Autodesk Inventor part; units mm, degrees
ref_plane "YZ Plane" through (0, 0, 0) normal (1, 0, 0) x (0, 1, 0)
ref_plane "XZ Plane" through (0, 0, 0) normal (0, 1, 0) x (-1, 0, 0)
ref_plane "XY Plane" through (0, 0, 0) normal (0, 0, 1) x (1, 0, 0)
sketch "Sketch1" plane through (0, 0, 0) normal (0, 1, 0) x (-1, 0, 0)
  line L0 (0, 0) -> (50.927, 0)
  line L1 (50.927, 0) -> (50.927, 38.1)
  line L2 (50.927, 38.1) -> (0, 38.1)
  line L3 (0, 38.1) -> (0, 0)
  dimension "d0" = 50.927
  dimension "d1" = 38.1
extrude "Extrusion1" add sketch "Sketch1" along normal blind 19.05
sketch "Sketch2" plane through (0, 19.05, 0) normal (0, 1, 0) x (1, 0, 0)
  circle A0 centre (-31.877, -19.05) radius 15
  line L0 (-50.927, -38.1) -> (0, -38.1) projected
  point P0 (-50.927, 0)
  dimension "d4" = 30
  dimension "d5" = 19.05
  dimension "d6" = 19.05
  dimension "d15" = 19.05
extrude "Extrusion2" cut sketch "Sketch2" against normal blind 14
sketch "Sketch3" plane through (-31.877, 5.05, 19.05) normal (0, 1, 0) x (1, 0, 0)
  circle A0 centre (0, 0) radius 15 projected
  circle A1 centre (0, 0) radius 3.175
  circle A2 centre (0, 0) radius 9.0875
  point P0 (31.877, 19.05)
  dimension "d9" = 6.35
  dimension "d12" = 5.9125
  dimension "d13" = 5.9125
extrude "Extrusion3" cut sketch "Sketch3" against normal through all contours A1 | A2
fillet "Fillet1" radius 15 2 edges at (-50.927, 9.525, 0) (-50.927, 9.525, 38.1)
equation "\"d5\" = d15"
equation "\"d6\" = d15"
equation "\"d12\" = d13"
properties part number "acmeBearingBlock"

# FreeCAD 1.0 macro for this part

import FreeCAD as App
import Part
import Sketcher
from FreeCAD import Vector
Q = App.Units.Quantity


def edges_at(feature, points):
    """Names of the edges that pass closest to the given points."""
    edges = feature.Shape.Edges
    near = lambda p: min(range(len(edges)), key=lambda i: edges[i].distToShape(Part.Vertex(*p))[0])
    return sorted({f"Edge{near(p) + 1}" for p in points})

doc = App.newDocument("Part")
body = doc.addObject("PartDesign::Body", "Body")

sketch1 = doc.addObject("Sketcher::SketchObject", "Sketch")
body.addObject(sketch1)
sketch1.AttachmentSupport = (doc.XZ_Plane, [""])
sketch1.MapMode = "FlatFace"
sketch1.addGeometry(Part.LineSegment(Vector(0, 38.1, 0), Vector(0, 0, 0)), False)
sketch1.addGeometry(Part.LineSegment(Vector(0, 0, 0), Vector(-50.927, 0, 0)), False)
sketch1.addGeometry(Part.LineSegment(Vector(-50.927, 0, 0), Vector(-50.927, 38.1, 0)), False)
sketch1.addGeometry(Part.LineSegment(Vector(-50.927, 38.1, 0), Vector(0, 38.1, 0)), False)
sketch1.addConstraint(Sketcher.Constraint("Coincident", 0, 2, 1, 1))
sketch1.addConstraint(Sketcher.Constraint("Coincident", 1, 2, 2, 1))
sketch1.addConstraint(Sketcher.Constraint("Coincident", 2, 2, 3, 1))
sketch1.addConstraint(Sketcher.Constraint("Coincident", 3, 2, 0, 1))
sketch1.addConstraint(Sketcher.Constraint("Vertical", 0))
sketch1.addConstraint(Sketcher.Constraint("Horizontal", 1))
sketch1.addConstraint(Sketcher.Constraint("Vertical", 2))
sketch1.addConstraint(Sketcher.Constraint("Horizontal", 3))
sketch1.addConstraint(Sketcher.Constraint("Coincident", 0, 2, -1, 1))
sketch1.addConstraint(Sketcher.Constraint("DistanceY", 0, 2, 0, 1, Q("1.5 in")))
sketch1.addConstraint(Sketcher.Constraint("DistanceX", 1, 2, 1, 1, Q("2.005 in")))
pad1 = doc.addObject("PartDesign::Pad", "Pad")
body.addObject(pad1)
pad1.Profile = sketch1
pad1.Length = Q("0.75 in")
pad1.Reversed = True

sketch2 = doc.addObject("Sketcher::SketchObject", "Sketch001")
body.addObject(sketch2)
sketch2.AttachmentSupport = (doc.XZ_Plane, [""])
sketch2.MapMode = "FlatFace"
sketch2.AttachmentOffset = App.Placement(Vector(0, 0, -0.75 * 25.4), App.Rotation())
sketch2.addGeometry(Part.Circle(Vector(-31.877, 19.05, 0), Vector(0, 0, 1), 15), False)
sketch2.addConstraint(Sketcher.Constraint("Diameter", 0, Q("1.1811 in")))
sketch2.addConstraint(Sketcher.Constraint("DistanceY", -1, 1, 0, 3, Q("0.75 in")))
sketch2.addConstraint(Sketcher.Constraint("DistanceX", 0, 3, -1, 1, Q("1.255 in")))
pocket1 = doc.addObject("PartDesign::Pocket", "Pocket")
body.addObject(pocket1)
pocket1.Profile = sketch2
pocket1.Length = 14
pocket1.Reversed = True

sketch3 = doc.addObject("Sketcher::SketchObject", "Sketch002")
body.addObject(sketch3)
sketch3.AttachmentSupport = (doc.XZ_Plane, [""])
sketch3.MapMode = "FlatFace"
sketch3.AttachmentOffset = App.Placement(Vector(0, 0, -5.05), App.Rotation())
sketch3.addGeometry(Part.Circle(Vector(-31.877, 19.05, 0), Vector(0, 0, 1), 9.0875), False)
sketch3.addConstraint(Sketcher.Constraint("Diameter", 0, 18.175))
sketch3.addConstraint(Sketcher.Constraint("DistanceY", -1, 1, 0, 3, Q("0.75 in")))
sketch3.addConstraint(Sketcher.Constraint("DistanceX", 0, 3, -1, 1, Q("1.255 in")))
pocket2 = doc.addObject("PartDesign::Pocket", "Pocket001")
body.addObject(pocket2)
pocket2.Profile = sketch3
pocket2.Type = "ThroughAll"
pocket2.Reversed = True
doc.recompute()

fillet = doc.addObject("PartDesign::Fillet", "Fillet")
body.addObject(fillet)
fillet.Base = (pocket2, edges_at(pocket2, [(-50.927, 9.525, 0), (-50.927, 9.525, 38.1)]))
fillet.Radius = 15

doc.recompute()
